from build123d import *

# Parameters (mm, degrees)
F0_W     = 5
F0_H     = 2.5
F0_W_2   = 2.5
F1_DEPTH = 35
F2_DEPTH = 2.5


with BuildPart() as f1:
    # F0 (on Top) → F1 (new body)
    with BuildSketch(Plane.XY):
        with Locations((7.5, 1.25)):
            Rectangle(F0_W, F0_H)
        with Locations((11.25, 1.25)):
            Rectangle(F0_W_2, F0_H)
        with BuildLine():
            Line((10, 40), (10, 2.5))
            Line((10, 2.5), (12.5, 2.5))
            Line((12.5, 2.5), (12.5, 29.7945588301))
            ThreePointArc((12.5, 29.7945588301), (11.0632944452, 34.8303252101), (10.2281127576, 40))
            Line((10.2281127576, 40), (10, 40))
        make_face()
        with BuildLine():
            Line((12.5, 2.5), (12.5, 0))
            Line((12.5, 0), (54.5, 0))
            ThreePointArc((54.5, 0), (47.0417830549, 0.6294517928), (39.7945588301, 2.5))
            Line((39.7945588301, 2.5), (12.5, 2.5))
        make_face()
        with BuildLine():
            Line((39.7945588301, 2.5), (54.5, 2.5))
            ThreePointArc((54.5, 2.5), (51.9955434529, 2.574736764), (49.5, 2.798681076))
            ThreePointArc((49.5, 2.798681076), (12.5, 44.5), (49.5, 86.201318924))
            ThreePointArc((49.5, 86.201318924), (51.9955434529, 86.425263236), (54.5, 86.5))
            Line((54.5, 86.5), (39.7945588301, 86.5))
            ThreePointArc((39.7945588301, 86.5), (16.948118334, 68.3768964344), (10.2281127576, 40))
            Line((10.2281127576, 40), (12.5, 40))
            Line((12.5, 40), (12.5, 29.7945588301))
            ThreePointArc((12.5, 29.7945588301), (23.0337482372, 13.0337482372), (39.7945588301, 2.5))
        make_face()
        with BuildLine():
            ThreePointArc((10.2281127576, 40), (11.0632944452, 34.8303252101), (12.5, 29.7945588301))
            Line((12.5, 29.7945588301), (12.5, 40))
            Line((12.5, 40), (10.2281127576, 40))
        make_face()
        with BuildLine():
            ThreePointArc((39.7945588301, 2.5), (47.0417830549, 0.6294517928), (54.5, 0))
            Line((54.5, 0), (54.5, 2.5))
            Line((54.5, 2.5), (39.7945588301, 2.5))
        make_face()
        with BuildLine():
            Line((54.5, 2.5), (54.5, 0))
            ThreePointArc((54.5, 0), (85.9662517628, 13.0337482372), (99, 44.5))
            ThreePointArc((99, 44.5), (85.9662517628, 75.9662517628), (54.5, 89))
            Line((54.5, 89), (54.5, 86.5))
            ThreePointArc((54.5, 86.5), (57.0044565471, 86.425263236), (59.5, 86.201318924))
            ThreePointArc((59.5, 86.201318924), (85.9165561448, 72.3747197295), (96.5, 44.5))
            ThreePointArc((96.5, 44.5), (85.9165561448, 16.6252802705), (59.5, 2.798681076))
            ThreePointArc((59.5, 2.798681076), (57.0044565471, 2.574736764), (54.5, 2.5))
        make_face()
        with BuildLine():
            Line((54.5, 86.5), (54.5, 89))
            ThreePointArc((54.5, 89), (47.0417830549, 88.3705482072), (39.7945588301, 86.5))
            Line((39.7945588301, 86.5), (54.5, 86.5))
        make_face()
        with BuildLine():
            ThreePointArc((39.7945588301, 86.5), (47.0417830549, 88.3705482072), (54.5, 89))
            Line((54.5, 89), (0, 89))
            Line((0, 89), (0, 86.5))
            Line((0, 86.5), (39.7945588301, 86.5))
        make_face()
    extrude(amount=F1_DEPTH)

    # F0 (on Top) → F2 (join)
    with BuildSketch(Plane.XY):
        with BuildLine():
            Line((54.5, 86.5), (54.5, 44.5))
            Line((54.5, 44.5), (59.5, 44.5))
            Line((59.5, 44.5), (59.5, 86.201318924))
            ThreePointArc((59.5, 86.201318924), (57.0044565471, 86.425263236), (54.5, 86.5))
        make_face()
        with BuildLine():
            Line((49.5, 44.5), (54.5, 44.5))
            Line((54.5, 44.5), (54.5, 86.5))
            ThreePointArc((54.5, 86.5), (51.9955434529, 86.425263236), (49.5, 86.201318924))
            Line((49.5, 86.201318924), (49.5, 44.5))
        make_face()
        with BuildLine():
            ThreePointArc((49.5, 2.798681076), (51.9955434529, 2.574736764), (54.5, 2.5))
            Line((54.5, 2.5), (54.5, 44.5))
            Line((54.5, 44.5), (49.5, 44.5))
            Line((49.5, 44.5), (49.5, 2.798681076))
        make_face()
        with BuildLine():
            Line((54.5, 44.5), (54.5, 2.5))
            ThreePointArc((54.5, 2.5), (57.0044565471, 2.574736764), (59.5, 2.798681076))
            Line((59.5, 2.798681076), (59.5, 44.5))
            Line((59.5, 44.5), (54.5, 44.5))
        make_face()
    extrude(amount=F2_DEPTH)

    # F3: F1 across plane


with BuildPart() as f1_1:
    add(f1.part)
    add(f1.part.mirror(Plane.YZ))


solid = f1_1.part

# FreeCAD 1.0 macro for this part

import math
import FreeCAD as App
import Part
import Sketcher

V = App.Vector

doc = App.newDocument("Part")
params = doc.addObject("Spreadsheet::Sheet", "Params")
for row, (alias, value) in enumerate([
    ("sketch1_radius", "42 mm"),
    ("sketch1_radius2", "44.5 mm"),
    ("sketch1_width", "5 mm"),
    ("sketch1_width2", "54.5 mm"),
    ("sketch1_width3", "49.5 mm"),
    ("pad1_length", "35 mm"),
    ("sketch2_radius", "42 mm"),
    ("pad2_length", "2.5 mm"),
], start=1):
    params.set(f"A{row}", alias)
    params.set(f"B{row}", "=" + value)
    params.setAlias(f"B{row}", alias)

body = doc.addObject("PartDesign::Body", "Body")

sketch1 = body.newObject("Sketcher::SketchObject", "Sketch")
sketch1.AttachmentSupport = (doc.getObject("XY_Plane"), [""])
sketch1.MapMode = "FlatFace"
sketch1.addGeometry(Part.ArcOfCircle(Part.Circle(V(54.5, 44.5, 0), V(0, 0, 1), 44.5), math.radians(-90), math.radians(90)), False)
sketch1.addGeometry(Part.LineSegment(V(54.5, 89, 0), V(0, 89, 0)), False)
sketch1.addGeometry(Part.LineSegment(V(0, 89, 0), V(0, 86.5, 0)), False)
sketch1.addGeometry(Part.LineSegment(V(0, 86.5, 0), V(39.794559, 86.5, 0)), False)
sketch1.addGeometry(Part.ArcOfCircle(Part.Circle(V(54.5, 44.5, 0), V(0, 0, 1), 44.5), math.radians(109.296659), math.radians(185.803876)), False)
sketch1.addGeometry(Part.LineSegment(V(10.228113, 40, 0), V(10, 40, 0)), False)
sketch1.addGeometry(Part.LineSegment(V(10, 40, 0), V(10, 2.5, 0)), False)
sketch1.addGeometry(Part.LineSegment(V(10, 2.5, 0), V(5, 2.5, 0)), False)
sketch1.addGeometry(Part.LineSegment(V(5, 2.5, 0), V(5, 0, 0)), False)
sketch1.addGeometry(Part.LineSegment(V(5, 0, 0), V(54.5, 0, 0)), False)
sketch1.addGeometry(Part.ArcOfCircle(Part.Circle(V(54.5, 44.5, 0), V(0, 0, 1), 44.5), math.radians(-160.703341), math.radians(-109.296659)), False)
sketch1.addGeometry(Part.LineSegment(V(39.794559, 2.5, 0), V(12.5, 2.5, 0)), False)
sketch1.addGeometry(Part.LineSegment(V(12.5, 2.5, 0), V(12.5, 29.794559, 0)), False)
sketch1.addGeometry(Part.ArcOfCircle(Part.Circle(V(54.5, 44.5, 0), V(0, 0, 1), 42), math.radians(90), math.radians(96.837141)), False)
sketch1.addGeometry(Part.ArcOfCircle(Part.Circle(V(54.5, 44.5, 0), V(0, 0, 1), 42), math.radians(83.162859), math.radians(90)), False)
sketch1.addGeometry(Part.ArcOfCircle(Part.Circle(V(54.5, 44.5, 0), V(0, 0, 1), 42), math.radians(0), math.radians(83.162859)), False)
sketch1.addGeometry(Part.ArcOfCircle(Part.Circle(V(54.5, 44.5, 0), V(0, 0, 1), 42), math.radians(-83.162859), math.radians(0)), False)
sketch1.addGeometry(Part.ArcOfCircle(Part.Circle(V(54.5, 44.5, 0), V(0, 0, 1), 42), math.radians(-90), math.radians(-83.162859)), False)
sketch1.addGeometry(Part.ArcOfCircle(Part.Circle(V(54.5, 44.5, 0), V(0, 0, 1), 42), math.radians(-96.837141), math.radians(-90)), False)
sketch1.addGeometry(Part.ArcOfCircle(Part.Circle(V(54.5, 44.5, 0), V(0, 0, 1), 42), math.radians(96.837141), math.radians(263.162859)), False)
sketch1.addConstraint(Sketcher.Constraint("Tangent", 0, 2, 1, 1))
sketch1.addConstraint(Sketcher.Constraint("Coincident", 1, 2, 2, 1))
sketch1.addConstraint(Sketcher.Constraint("Coincident", 2, 2, 3, 1))
sketch1.addConstraint(Sketcher.Constraint("Coincident", 3, 2, 4, 1))
sketch1.addConstraint(Sketcher.Constraint("Coincident", 4, 2, 5, 1))
sketch1.addConstraint(Sketcher.Constraint("Coincident", 5, 2, 6, 1))
sketch1.addConstraint(Sketcher.Constraint("Coincident", 6, 2, 7, 1))
sketch1.addConstraint(Sketcher.Constraint("Coincident", 7, 2, 8, 1))
sketch1.addConstraint(Sketcher.Constraint("Coincident", 8, 2, 9, 1))
sketch1.addConstraint(Sketcher.Constraint("Tangent", 9, 2, 0, 1))
sketch1.addConstraint(Sketcher.Constraint("Coincident", 10, 2, 11, 1))
sketch1.addConstraint(Sketcher.Constraint("Coincident", 11, 2, 12, 1))
sketch1.addConstraint(Sketcher.Constraint("Coincident", 12, 2, 10, 1))
sketch1.addConstraint(Sketcher.Constraint("Tangent", 13, 1, 14, 2))
sketch1.addConstraint(Sketcher.Constraint("Tangent", 14, 1, 15, 2))
sketch1.addConstraint(Sketcher.Constraint("Tangent", 15, 1, 16, 2))
sketch1.addConstraint(Sketcher.Constraint("Tangent", 16, 1, 17, 2))
sketch1.addConstraint(Sketcher.Constraint("Tangent", 17, 1, 18, 2))
sketch1.addConstraint(Sketcher.Constraint("Tangent", 18, 1, 19, 2))
sketch1.addConstraint(Sketcher.Constraint("Tangent", 19, 1, 13, 2))
sketch1.addConstraint(Sketcher.Constraint("Horizontal", 1))
sketch1.addConstraint(Sketcher.Constraint("Vertical", 2))
sketch1.addConstraint(Sketcher.Constraint("Horizontal", 3))
sketch1.addConstraint(Sketcher.Constraint("Horizontal", 5))
sketch1.addConstraint(Sketcher.Constraint("Vertical", 6))
sketch1.addConstraint(Sketcher.Constraint("Horizontal", 7))
sketch1.addConstraint(Sketcher.Constraint("Vertical", 8))
sketch1.addConstraint(Sketcher.Constraint("Horizontal", 9))
sketch1.addConstraint(Sketcher.Constraint("Horizontal", 11))
sketch1.addConstraint(Sketcher.Constraint("Vertical", 12))
sketch1.addConstraint(Sketcher.Constraint("Coincident", 4, 3, 0, 3))
sketch1.addConstraint(Sketcher.Constraint("Coincident", 10, 3, 0, 3))
sketch1.addConstraint(Sketcher.Constraint("Coincident", 13, 3, 0, 3))
sketch1.addConstraint(Sketcher.Constraint("Coincident", 15, 3, 0, 3))
sketch1.addConstraint(Sketcher.Constraint("Coincident", 17, 3, 0, 3))
sketch1.addConstraint(Sketcher.Constraint("Equal", 0, 4))
sketch1.addConstraint(Sketcher.Constraint("Equal", 4, 10))
sketch1.addConstraint(Sketcher.Constraint("PointOnObject", 1, 2, -2))
sketch1.addConstraint(Sketcher.Constraint("PointOnObject", 8, 2, -1))
sketch1.addConstraint(Sketcher.Constraint("Horizontal", 7, 2, 10, 2))
sketch1.addConstraint(Sketcher.Constraint("Horizontal", 3, 2, 13, 1))
sketch1.addConstraint(Sketcher.Constraint("Horizontal", 19, 3, 15, 1))
sketch1.addConstraint(Sketcher.Constraint("Horizontal", 11, 2, 17, 1))
sketch1.addConstraint(Sketcher.Constraint("Horizontal", 16, 1, 18, 1))
sketch1.addConstraint(Sketcher.Constraint("Horizontal", 14, 1, 19, 1))
sketch1.addConstraint(Sketcher.Constraint("Vertical", 9, 2, 13, 1))
sketch1.addConstraint(Sketcher.Constraint("Vertical", 14, 1, 16, 1))
sketch1.addConstraint(Sketcher.Constraint("Vertical", 13, 1, 17, 1))
sketch1.addConstraint(Sketcher.Constraint("Equal", 11, 12))
sketch1.addConstraint(Sketcher.Constraint("Radius", 13, 42.0))
sketch1.addConstraint(Sketcher.Constraint("Radius", 0, 44.5))
sketch1.addConstraint(Sketcher.Constraint("DistanceX", 7, 2, 7, 1, 5.0))
sketch1.addConstraint(Sketcher.Constraint("DistanceX", 1, 2, 1, 1, 54.5))
sketch1.addConstraint(Sketcher.Constraint("DistanceX", 9, 1, 9, 2, 49.5))
sketch1.addConstraint(Sketcher.Constraint("DistanceY", 6, 2, 6, 1, 37.5))
sketch1.addConstraint(Sketcher.Constraint("DistanceX", 13, 1, 14, 1, 5.0))
sketch1.setExpression("Constraints[49]", "Params.sketch1_radius")
sketch1.setExpression("Constraints[50]", "Params.sketch1_radius2")
sketch1.setExpression("Constraints[51]", "Params.sketch1_width")
sketch1.setExpression("Constraints[52]", "Params.sketch1_width2")
sketch1.setExpression("Constraints[53]", "Params.sketch1_width3")
pad1 = body.newObject("PartDesign::Pad", "Pad")
pad1.Profile = sketch1
pad1.setExpression("Length", "Params.pad1_length")

sketch2 = body.newObject("Sketcher::SketchObject", "Sketch001")
sketch2.AttachmentSupport = (doc.getObject("XY_Plane"), [""])
sketch2.MapMode = "FlatFace"
sketch2.addGeometry(Part.ArcOfCircle(Part.Circle(V(54.5, 44.5, 0), V(0, 0, 1), 42), math.radians(83.162859), math.radians(90)), False)
sketch2.addGeometry(Part.ArcOfCircle(Part.Circle(V(54.5, 44.5, 0), V(0, 0, 1), 42), math.radians(90), math.radians(96.837141)), False)
sketch2.addGeometry(Part.LineSegment(V(49.5, 86.201319, 0), V(49.5, 2.798681, 0)), False)
sketch2.addGeometry(Part.ArcOfCircle(Part.Circle(V(54.5, 44.5, 0), V(0, 0, 1), 42), math.radians(-96.837141), math.radians(-90)), False)
sketch2.addGeometry(Part.ArcOfCircle(Part.Circle(V(54.5, 44.5, 0), V(0, 0, 1), 42), math.radians(-90), math.radians(-83.162859)), False)
sketch2.addGeometry(Part.LineSegment(V(59.5, 2.798681, 0), V(59.5, 86.201319, 0)), False)
sketch2.addConstraint(Sketcher.Constraint("Tangent", 0, 2, 1, 1))
sketch2.addConstraint(Sketcher.Constraint("Coincident", 1, 2, 2, 1))
sketch2.addConstraint(Sketcher.Constraint("Coincident", 2, 2, 3, 1))
sketch2.addConstraint(Sketcher.Constraint("Tangent", 3, 2, 4, 1))
sketch2.addConstraint(Sketcher.Constraint("Coincident", 4, 2, 5, 1))
sketch2.addConstraint(Sketcher.Constraint("Coincident", 5, 2, 0, 1))
sketch2.addConstraint(Sketcher.Constraint("Vertical", 2))
sketch2.addConstraint(Sketcher.Constraint("Vertical", 5))
sketch2.addConstraint(Sketcher.Constraint("Coincident", 3, 3, 0, 3))
sketch2.addConstraint(Sketcher.Constraint("Equal", 0, 1))
sketch2.addConstraint(Sketcher.Constraint("Equal", 1, 3))
sketch2.addConstraint(Sketcher.Constraint("Equal", 3, 4))
sketch2.addConstraint(Sketcher.Constraint("Horizontal", 2, 2, 4, 2))
sketch2.addConstraint(Sketcher.Constraint("Vertical", 4, 3, 0, 2))
sketch2.addConstraint(Sketcher.Constraint("Vertical", 0, 2, 3, 2))
sketch2.addConstraint(Sketcher.Constraint("Radius", 0, 42.0))
sketch2.addConstraint(Sketcher.Constraint("DistanceX", 1, 2, 0, 2, 5.0))
sketch2.addConstraint(Sketcher.Constraint("DistanceX", -1, 1, 0, 3, 54.5))
sketch2.addConstraint(Sketcher.Constraint("DistanceY", -1, 1, 0, 3, 44.5))
sketch2.setExpression("Constraints[15]", "Params.sketch2_radius")
pad2 = body.newObject("PartDesign::Pad", "Pad001")
pad2.Profile = sketch2
pad2.setExpression("Length", "Params.pad2_length")
body2 = doc.addObject("PartDesign::Body", "Body001")
doc.recompute()

body2.BaseFeature = body
doc.recompute()

mirroring = doc.addObject("Part::Mirroring", "Mirroring")
mirroring.Source = body
mirroring.Base = V(0, 0, 0)
mirroring.Normal = V(1, 0, 0)
body3 = doc.addObject("PartDesign::Body", "Body002")
body3.BaseFeature = mirroring
boolean = body2.newObject("PartDesign::Boolean", "Boolean")
boolean.Type = "Fuse"
boolean.addObjects([body3])
doc.recompute()
mirroring.Visibility = False

doc.recompute()
